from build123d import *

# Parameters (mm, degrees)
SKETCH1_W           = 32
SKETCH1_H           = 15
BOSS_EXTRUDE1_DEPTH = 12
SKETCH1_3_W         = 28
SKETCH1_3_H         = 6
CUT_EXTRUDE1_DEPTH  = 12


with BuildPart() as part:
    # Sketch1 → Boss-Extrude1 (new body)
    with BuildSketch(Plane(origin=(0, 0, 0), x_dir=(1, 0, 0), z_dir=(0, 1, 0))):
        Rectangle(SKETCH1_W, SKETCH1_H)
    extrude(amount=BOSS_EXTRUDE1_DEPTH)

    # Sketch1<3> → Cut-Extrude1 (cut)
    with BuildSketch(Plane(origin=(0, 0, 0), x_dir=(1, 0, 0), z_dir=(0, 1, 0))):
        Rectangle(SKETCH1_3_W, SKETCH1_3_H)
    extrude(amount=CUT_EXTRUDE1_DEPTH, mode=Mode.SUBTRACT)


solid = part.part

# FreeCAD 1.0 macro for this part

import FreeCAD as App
import Part
import Sketcher

V = App.Vector
Q = App.Units.Quantity


def add_polygon(sketch, points):
    """Adds a closed chain of lines whose ends are joined by coincident constraints."""
    first, n = sketch.GeometryCount, len(points)
    for a, b in zip(points, points[1:] + points[:1]):
        sketch.addGeometry(Part.LineSegment(App.Vector(*a, 0), App.Vector(*b, 0)), False)
    for i in range(n):
        sketch.addConstraint(Sketcher.Constraint("Coincident", first + i, 2, first + (i + 1) % n, 1))

doc = App.newDocument("Part")
body = doc.addObject("PartDesign::Body", "Body")

# Sketch on XZ plane
sketch1 = doc.addObject("Sketcher::SketchObject", "Sketch")
body.addObject(sketch1)
sketch1.AttachmentSupport = (doc.XZ_Plane, [""])
sketch1.MapMode = "FlatFace"
add_polygon(sketch1, [(-16, -8), (-16, 8), (16, 8), (16, -8)])  # lines 0-3
sketch1.addConstraint([
    Sketcher.Constraint("Vertical", 0),
    Sketcher.Constraint("Horizontal", 1),
    Sketcher.Constraint("Vertical", 2),
    Sketcher.Constraint("Horizontal", 3),
    Sketcher.Constraint("Symmetric", 0, 2, 2, 2, -1, 1),
    Sketcher.Constraint("DistanceX", 1, 1, 1, 2, Q("32 mm")),
    Sketcher.Constraint("DistanceY", 0, 1, 0, 2, Q("15 mm")),
])
pad1 = doc.addObject("PartDesign::Pad", "Pad")
body.addObject(pad1)
pad1.Profile = sketch1
pad1.Length = 12
pad1.Reversed = True

# Sketch on XZ plane
sketch2 = doc.addObject("Sketcher::SketchObject", "Sketch001")
body.addObject(sketch2)
sketch2.AttachmentSupport = (doc.XZ_Plane, [""])
sketch2.MapMode = "FlatFace"
add_polygon(sketch2, [(-14, -3), (-14, 3), (14, 3), (14, -3)])  # lines 0-3
sketch2.addConstraint([
    Sketcher.Constraint("Vertical", 0),
    Sketcher.Constraint("Horizontal", 1),
    Sketcher.Constraint("Vertical", 2),
    Sketcher.Constraint("Horizontal", 3),
    Sketcher.Constraint("Symmetric", 0, 2, 2, 2, -1, 1),
    Sketcher.Constraint("DistanceX", 1, 1, 1, 2, Q("28 mm")),
    Sketcher.Constraint("DistanceY", 0, 1, 0, 2, Q("6 mm")),
])
pocket1 = doc.addObject("PartDesign::Pocket", "Pocket")
body.addObject(pocket1)
pocket1.Profile = sketch2
pocket1.Length = 12

doc.recompute()
